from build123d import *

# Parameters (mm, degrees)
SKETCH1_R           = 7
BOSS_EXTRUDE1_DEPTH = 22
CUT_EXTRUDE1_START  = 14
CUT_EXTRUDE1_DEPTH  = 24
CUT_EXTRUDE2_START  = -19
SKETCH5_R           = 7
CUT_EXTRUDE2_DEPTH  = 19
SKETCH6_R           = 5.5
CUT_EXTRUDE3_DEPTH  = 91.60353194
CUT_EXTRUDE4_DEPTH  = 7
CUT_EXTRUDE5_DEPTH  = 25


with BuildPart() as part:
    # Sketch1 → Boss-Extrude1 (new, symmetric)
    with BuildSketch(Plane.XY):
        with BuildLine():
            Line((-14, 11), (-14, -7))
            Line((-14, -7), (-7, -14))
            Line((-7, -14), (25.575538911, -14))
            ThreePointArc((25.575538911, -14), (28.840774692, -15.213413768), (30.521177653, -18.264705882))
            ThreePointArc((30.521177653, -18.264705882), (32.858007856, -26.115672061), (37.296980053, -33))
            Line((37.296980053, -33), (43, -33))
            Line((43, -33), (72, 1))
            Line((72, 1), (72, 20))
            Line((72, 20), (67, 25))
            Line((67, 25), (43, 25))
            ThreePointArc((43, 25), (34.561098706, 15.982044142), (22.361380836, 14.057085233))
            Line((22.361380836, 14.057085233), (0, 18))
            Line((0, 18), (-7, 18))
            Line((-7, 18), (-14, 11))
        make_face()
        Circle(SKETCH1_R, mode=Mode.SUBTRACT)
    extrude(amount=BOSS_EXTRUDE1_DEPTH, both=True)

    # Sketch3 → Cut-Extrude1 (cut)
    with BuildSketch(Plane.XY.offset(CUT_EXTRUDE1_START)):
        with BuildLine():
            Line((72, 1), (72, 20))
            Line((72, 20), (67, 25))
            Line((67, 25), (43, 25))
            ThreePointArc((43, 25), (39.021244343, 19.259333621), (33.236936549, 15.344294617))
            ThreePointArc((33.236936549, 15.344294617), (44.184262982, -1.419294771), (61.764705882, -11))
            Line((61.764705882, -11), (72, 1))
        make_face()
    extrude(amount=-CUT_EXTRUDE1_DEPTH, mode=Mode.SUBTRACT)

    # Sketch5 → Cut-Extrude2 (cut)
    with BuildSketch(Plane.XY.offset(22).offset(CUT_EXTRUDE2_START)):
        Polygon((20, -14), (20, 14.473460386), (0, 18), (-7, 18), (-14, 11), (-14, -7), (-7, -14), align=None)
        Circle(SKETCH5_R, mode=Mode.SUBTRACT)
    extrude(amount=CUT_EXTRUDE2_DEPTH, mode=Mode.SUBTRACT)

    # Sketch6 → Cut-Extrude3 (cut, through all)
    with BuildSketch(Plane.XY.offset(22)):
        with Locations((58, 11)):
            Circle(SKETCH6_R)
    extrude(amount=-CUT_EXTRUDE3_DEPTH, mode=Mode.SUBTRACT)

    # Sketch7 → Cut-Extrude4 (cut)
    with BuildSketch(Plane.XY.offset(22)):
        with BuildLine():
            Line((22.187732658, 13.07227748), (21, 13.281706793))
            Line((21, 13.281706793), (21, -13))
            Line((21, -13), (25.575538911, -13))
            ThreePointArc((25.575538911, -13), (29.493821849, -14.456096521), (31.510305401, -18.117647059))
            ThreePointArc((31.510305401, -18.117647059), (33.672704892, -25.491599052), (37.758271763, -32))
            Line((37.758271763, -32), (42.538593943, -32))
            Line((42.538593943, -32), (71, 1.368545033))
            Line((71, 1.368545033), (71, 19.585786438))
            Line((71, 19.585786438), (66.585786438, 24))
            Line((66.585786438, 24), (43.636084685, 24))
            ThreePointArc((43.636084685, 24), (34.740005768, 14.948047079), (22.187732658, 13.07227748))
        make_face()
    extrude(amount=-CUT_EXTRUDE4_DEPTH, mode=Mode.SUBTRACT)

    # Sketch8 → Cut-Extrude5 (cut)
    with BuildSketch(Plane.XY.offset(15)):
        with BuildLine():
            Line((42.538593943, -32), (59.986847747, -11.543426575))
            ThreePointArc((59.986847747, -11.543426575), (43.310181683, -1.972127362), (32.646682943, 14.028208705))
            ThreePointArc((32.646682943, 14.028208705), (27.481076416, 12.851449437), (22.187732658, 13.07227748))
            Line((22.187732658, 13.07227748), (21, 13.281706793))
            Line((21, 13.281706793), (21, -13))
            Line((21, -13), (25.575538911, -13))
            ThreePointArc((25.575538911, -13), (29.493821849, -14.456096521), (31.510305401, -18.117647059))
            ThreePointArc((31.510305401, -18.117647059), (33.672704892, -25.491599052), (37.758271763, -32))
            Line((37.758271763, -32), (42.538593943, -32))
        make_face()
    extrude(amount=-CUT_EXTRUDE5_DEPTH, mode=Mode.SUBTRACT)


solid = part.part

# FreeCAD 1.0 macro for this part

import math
import FreeCAD as App
import Part
import Sketcher

V = App.Vector
Q = App.Units.Quantity

doc = App.newDocument("Part")
params = doc.addObject("Spreadsheet::Sheet", "Params")
for row, (alias, value) in enumerate([
    ("sketch1_diameter", "14 mm"),
    ("sketch1_radius", "5 mm"),
    ("sketch1_radius2", "29 mm"),
    ("sketch1_radius3", "19 mm"),
    ("sketch1_width", "24 mm"),
    ("pad1_length", "44 mm"),
    ("sketch2_radius", "19 mm"),
    ("sketch2_radius2", "41 mm"),
    ("sketch2_width", "24 mm"),
    ("sketch2_height", "19 mm"),
    ("pocket1_length", "24 mm"),
    ("sketch3_diameter", "14 mm"),
    ("sketch3_width", "7 mm"),
    ("sketch3_width2", "27 mm"),
    ("sketch3_height", "18 mm"),
    ("pocket2_length", "19 mm"),
    ("sketch4_diameter", "11 mm"),
    ("sketch5_radius", "6 mm"),
    ("sketch5_radius2", "28 mm"),
    ("sketch5_radius3", "20 mm"),
    ("pocket4_length", "7 mm"),
    ("sketch6_radius", "42 mm"),
    ("sketch6_radius2", "20 mm"),
    ("sketch6_radius3", "6 mm"),
    ("sketch6_radius4", "28 mm"),
    ("pocket5_length", "25 mm"),
], start=1):
    params.set(f"A{row}", alias)
    params.set(f"B{row}", "=" + value)
    params.setAlias(f"B{row}", alias)

body = doc.addObject("PartDesign::Body", "Body")

sketch1 = body.newObject("Sketcher::SketchObject", "Sketch")
sketch1.AttachmentSupport = (doc.getObject("XY_Plane"), [""])
sketch1.MapMode = "FlatFace"
sketch1.addGeometry([
    Part.LineSegment(V(-14, 11, 0), V(-14, -7, 0)),
    Part.LineSegment(V(-14, -7, 0), V(-7, -14, 0)),
    Part.LineSegment(V(-7, -14, 0), V(26, -14, 0)),
    Part.ArcOfCircle(Part.Circle(V(26, -19, 0), V(0, 0, 1), 5), math.radians(8), math.radians(90)),
    Part.ArcOfCircle(Part.Circle(V(59, -14, 0), V(0, 0, 1), 29), math.radians(-172), math.radians(-139)),
    Part.LineSegment(V(37, -33, 0), V(43, -33, 0)),
    Part.LineSegment(V(43, -33, 0), V(72, 1, 0)),
    Part.LineSegment(V(72, 1, 0), V(72, 20, 0)),
    Part.LineSegment(V(72, 20, 0), V(67, 25, 0)),
    Part.LineSegment(V(67, 25, 0), V(43, 25, 0)),
    Part.ArcOfCircle(Part.Circle(V(26, 33, 0), V(0, 0, 1), 19), math.radians(-100), math.radians(-24)),
    Part.LineSegment(V(22, 14, 0), V(0, 18, 0)),
    Part.LineSegment(V(0, 18, 0), V(-7, 18, 0)),
    Part.LineSegment(V(-7, 18, 0), V(-14, 11, 0)),
    Part.Circle(V(0, 0, 0), V(0, 0, 1), 7),
], False)
sketch1.addConstraint([
    Sketcher.Constraint("Coincident", 0, 2, 1, 1),
    Sketcher.Constraint("Coincident", 1, 2, 2, 1),
    Sketcher.Constraint("Tangent", 2, 2, 3, 2),
    Sketcher.Constraint("Tangent", 3, 1, 4, 1),
    Sketcher.Constraint("Coincident", 4, 2, 5, 1),
    Sketcher.Constraint("Coincident", 5, 2, 6, 1),
    Sketcher.Constraint("Coincident", 6, 2, 7, 1),
    Sketcher.Constraint("Coincident", 7, 2, 8, 1),
    Sketcher.Constraint("Coincident", 8, 2, 9, 1),
    Sketcher.Constraint("Coincident", 9, 2, 10, 2),
    Sketcher.Constraint("Tangent", 10, 1, 11, 1),
    Sketcher.Constraint("Coincident", 11, 2, 12, 1),
    Sketcher.Constraint("Coincident", 12, 2, 13, 1),
    Sketcher.Constraint("Coincident", 13, 2, 0, 1),
    Sketcher.Constraint("Vertical", 0),
    Sketcher.Constraint("Horizontal", 2),
    Sketcher.Constraint("Horizontal", 5),
    Sketcher.Constraint("Vertical", 7),
    Sketcher.Constraint("Horizontal", 9),
    Sketcher.Constraint("Horizontal", 12),
    Sketcher.Constraint("Coincident", 14, 3, -1, 1),
    Sketcher.Constraint("PointOnObject", 11, 2, -2),
    Sketcher.Constraint("Parallel", 1, 8),
    Sketcher.Constraint("Perpendicular", 8, 13),
    Sketcher.Constraint("Horizontal", 4, 3, 1, 2),
    Sketcher.Constraint("Vertical", 5, 2, 9, 2),
    Sketcher.Constraint("Vertical", 1, 2, 12, 2),
    Sketcher.Constraint("Equal", 1, 13),
    Sketcher.Constraint("Diameter", 14, Q("14 mm")),
    Sketcher.Constraint("Radius", 3, Q("5 mm")),
    Sketcher.Constraint("Radius", 4, Q("29 mm")),
    Sketcher.Constraint("Radius", 10, Q("19 mm")),
    Sketcher.Constraint("DistanceX", 9, 2, 9, 1, Q("24 mm")),
    Sketcher.Constraint("DistanceX", 12, 2, 12, 1, Q("7 mm")),
    Sketcher.Constraint("DistanceY", 0, 2, 0, 1, Q("18 mm")),
    Sketcher.Constraint("DistanceY", 7, 1, 7, 2, Q("19 mm")),
    Sketcher.Constraint("Angle", 11, Q("170 deg")),
    Sketcher.Constraint("DistanceY", 3, 3, -1, 1, Q("19 mm")),
    Sketcher.Constraint("DistanceX", 0, 2, -1, 1, Q("14 mm")),
    Sketcher.Constraint("DistanceY", 4, 2, -1, 1, Q("33 mm")),
    Sketcher.Constraint("DistanceX", -1, 1, 5, 2, Q("43 mm")),
    Sketcher.Constraint("DistanceX", -1, 1, 6, 2, Q("72 mm")),
    Sketcher.Constraint("DistanceY", -1, 1, 6, 2, Q("1 mm")),
    Sketcher.Constraint("DistanceX", 2, 1, 2, 2, Q("32.575539 mm")),
])
sketch1.setExpression("Constraints[28]", "Params.sketch1_diameter")
sketch1.setExpression("Constraints[29]", "Params.sketch1_radius")
sketch1.setExpression("Constraints[30]", "Params.sketch1_radius2")
sketch1.setExpression("Constraints[31]", "Params.sketch1_radius3")
sketch1.setExpression("Constraints[32]", "Params.sketch1_width")
pad1 = body.newObject("PartDesign::Pad", "Pad")
pad1.Profile = sketch1
pad1.setExpression("Length", "Params.pad1_length")
pad1.Midplane = True

sketch2 = body.newObject("Sketcher::SketchObject", "Sketch001")
sketch2.AttachmentSupport = (doc.getObject("XY_Plane"), [""])
sketch2.MapMode = "FlatFace"
sketch2.AttachmentOffset = App.Placement(V(0, 0, 14), App.Rotation())
sketch2.addGeometry([
    Part.LineSegment(V(72, 1, 0), V(72, 20, 0)),
    Part.LineSegment(V(72, 20, 0), V(67, 25, 0)),
    Part.LineSegment(V(67, 25, 0), V(43, 25, 0)),
    Part.ArcOfCircle(Part.Circle(V(26, 33, 0), V(0, 0, 1), 19), math.radians(-66), math.radians(-24)),
    Part.ArcOfCircle(Part.Circle(V(72, 29, 0), V(0, 0, 1), 41), math.radians(-161), math.radians(-104)),
    Part.LineSegment(V(62, -11, 0), V(72, 1, 0)),
], False)
sketch2.addConstraint([
    Sketcher.Constraint("Coincident", 0, 2, 1, 1),
    Sketcher.Constraint("Coincident", 1, 2, 2, 1),
    Sketcher.Constraint("Coincident", 2, 2, 3, 2),
    Sketcher.Constraint("Coincident", 3, 1, 4, 1),
    Sketcher.Constraint("Coincident", 4, 2, 5, 1),
    Sketcher.Constraint("Coincident", 5, 2, 0, 1),
    Sketcher.Constraint("Vertical", 0),
    Sketcher.Constraint("Horizontal", 2),
    Sketcher.Constraint("Vertical", 4, 3, 0, 2),
    Sketcher.Constraint("Radius", 3, Q("19 mm")),
    Sketcher.Constraint("Radius", 4, Q("41 mm")),
    Sketcher.Constraint("DistanceX", 2, 2, 2, 1, Q("24 mm")),
    Sketcher.Constraint("DistanceY", 0, 1, 0, 2, Q("19 mm")),
    Sketcher.Constraint("Angle", 1, Q("135 deg")),
    Sketcher.Constraint("DistanceX", -1, 1, 4, 3, Q("72 mm")),
    Sketcher.Constraint("DistanceY", -1, 1, 0, 2, Q("20 mm")),
    Sketcher.Constraint("DistanceX", -1, 1, 1, 2, Q("67 mm")),
    Sketcher.Constraint("DistanceY", 4, 2, -1, 1, Q("11 mm")),
    Sketcher.Constraint("DistanceY", 4, 3, 3, 3, Q("4.066559 mm")),
    Sketcher.Constraint("DistanceX", 3, 3, 3, 1, Q("7.57624 mm")),
])
sketch2.setExpression("Constraints[9]", "Params.sketch2_radius")
sketch2.setExpression("Constraints[10]", "Params.sketch2_radius2")
sketch2.setExpression("Constraints[11]", "Params.sketch2_width")
sketch2.setExpression("Constraints[12]", "Params.sketch2_height")
pocket1 = body.newObject("PartDesign::Pocket", "Pocket")
pocket1.Profile = sketch2
pocket1.setExpression("Length", "Params.pocket1_length")

sketch3 = body.newObject("Sketcher::SketchObject", "Sketch002")
sketch3.AttachmentSupport = (doc.getObject("XY_Plane"), [""])
sketch3.MapMode = "FlatFace"
sketch3.AttachmentOffset = App.Placement(V(0, 0, 3), App.Rotation())
sketch3.addGeometry([
    Part.LineSegment(V(20, -14, 0), V(20, 14, 0)),
    Part.LineSegment(V(20, 14, 0), V(0, 18, 0)),
    Part.LineSegment(V(0, 18, 0), V(-7, 18, 0)),
    Part.LineSegment(V(-7, 18, 0), V(-14, 11, 0)),
    Part.LineSegment(V(-14, 11, 0), V(-14, -7, 0)),
    Part.LineSegment(V(-14, -7, 0), V(-7, -14, 0)),
    Part.LineSegment(V(-7, -14, 0), V(20, -14, 0)),
    Part.Circle(V(0, 0, 0), V(0, 0, 1), 7),
], False)
sketch3.addConstraint([
    Sketcher.Constraint("Coincident", 0, 2, 1, 1),
    Sketcher.Constraint("Coincident", 1, 2, 2, 1),
    Sketcher.Constraint("Coincident", 2, 2, 3, 1),
    Sketcher.Constraint("Coincident", 3, 2, 4, 1),
    Sketcher.Constraint("Coincident", 4, 2, 5, 1),
    Sketcher.Constraint("Coincident", 5, 2, 6, 1),
    Sketcher.Constraint("Coincident", 6, 2, 0, 1),
    Sketcher.Constraint("Vertical", 0),
    Sketcher.Constraint("Horizontal", 2),
    Sketcher.Constraint("Vertical", 4),
    Sketcher.Constraint("Horizontal", 6),
    Sketcher.Constraint("Coincident", 7, 3, -1, 1),
    Sketcher.Constraint("PointOnObject", 1, 2, -2),
    Sketcher.Constraint("Perpendicular", 3, 5),
    Sketcher.Constraint("Vertical", 2, 2, 5, 2),
    Sketcher.Constraint("Equal", 3, 5),
    Sketcher.Constraint("Diameter", 7, Q("14 mm")),
    Sketcher.Constraint("DistanceX", 2, 2, 2, 1, Q("7 mm")),
    Sketcher.Constraint("DistanceX", 6, 1, 6, 2, Q("27 mm")),
    Sketcher.Constraint("DistanceY", 4, 2, 4, 1, Q("18 mm")),
    Sketcher.Constraint("Angle", 1, Q("170 deg")),
    Sketcher.Constraint("DistanceY", -1, 1, 1, 2, Q("18 mm")),
    Sketcher.Constraint("DistanceX", 3, 2, -1, 1, Q("14 mm")),
])
sketch3.setExpression("Constraints[16]", "Params.sketch3_diameter")
sketch3.setExpression("Constraints[17]", "Params.sketch3_width")
sketch3.setExpression("Constraints[18]", "Params.sketch3_width2")
sketch3.setExpression("Constraints[19]", "Params.sketch3_height")
pocket2 = body.newObject("PartDesign::Pocket", "Pocket001")
pocket2.Profile = sketch3
pocket2.setExpression("Length", "Params.pocket2_length")
pocket2.Reversed = True

sketch4 = body.newObject("Sketcher::SketchObject", "Sketch003")
sketch4.AttachmentSupport = (doc.getObject("XY_Plane"), [""])
sketch4.MapMode = "FlatFace"
sketch4.AttachmentOffset = App.Placement(V(0, 0, 22), App.Rotation())
sketch4.addGeometry(Part.Circle(V(58, 11, 0), V(0, 0, 1), 6), False)
sketch4.addConstraint([
    Sketcher.Constraint("Diameter", 0, Q("11 mm")),
    Sketcher.Constraint("DistanceX", -1, 1, 0, 3, Q("58 mm")),
    Sketcher.Constraint("DistanceY", -1, 1, 0, 3, Q("11 mm")),
])
sketch4.setExpression("Constraints[0]", "Params.sketch4_diameter")
pocket3 = body.newObject("PartDesign::Pocket", "Pocket002")
pocket3.Profile = sketch4
pocket3.Type = "ThroughAll"

sketch5 = body.newObject("Sketcher::SketchObject", "Sketch004")
sketch5.AttachmentSupport = (doc.getObject("XY_Plane"), [""])
sketch5.MapMode = "FlatFace"
sketch5.AttachmentOffset = App.Placement(V(0, 0, 22), App.Rotation())
sketch5.addGeometry([
    Part.LineSegment(V(22.2, 13.1, 0), V(21, 13.3, 0)),
    Part.LineSegment(V(21, 13.3, 0), V(21, -13, 0)),
    Part.LineSegment(V(21, -13, 0), V(25.6, -13, 0)),
    Part.ArcOfCircle(Part.Circle(V(25.6, -19, 0), V(0, 0, 1), 6), math.radians(8), math.radians(90)),
    Part.ArcOfCircle(Part.Circle(V(59.2, -14, 0), V(0, 0, 1), 28), math.radians(-172), math.radians(-140)),
    Part.LineSegment(V(37.8, -32, 0), V(42.5, -32, 0)),
    Part.LineSegment(V(42.5, -32, 0), V(71, 1.4, 0)),
    Part.LineSegment(V(71, 1.4, 0), V(71, 19.6, 0)),
    Part.LineSegment(V(71, 19.6, 0), V(66.6, 24, 0)),
    Part.LineSegment(V(66.6, 24, 0), V(43.6, 24, 0)),
    Part.ArcOfCircle(Part.Circle(V(25.7, 32.8, 0), V(0, 0, 1), 20), math.radians(-100), math.radians(-26)),
], False)
sketch5.addConstraint([
    Sketcher.Constraint("Coincident", 0, 2, 1, 1),
    Sketcher.Constraint("Coincident", 1, 2, 2, 1),
    Sketcher.Constraint("Tangent", 2, 2, 3, 2),
    Sketcher.Constraint("Tangent", 3, 1, 4, 1),
    Sketcher.Constraint("Coincident", 4, 2, 5, 1),
    Sketcher.Constraint("Coincident", 5, 2, 6, 1),
    Sketcher.Constraint("Coincident", 6, 2, 7, 1),
    Sketcher.Constraint("Coincident", 7, 2, 8, 1),
    Sketcher.Constraint("Coincident", 8, 2, 9, 1),
    Sketcher.Constraint("Coincident", 9, 2, 10, 2),
    Sketcher.Constraint("Tangent", 10, 1, 0, 1),
    Sketcher.Constraint("Vertical", 1),
    Sketcher.Constraint("Horizontal", 2),
    Sketcher.Constraint("Horizontal", 5),
    Sketcher.Constraint("Vertical", 7),
    Sketcher.Constraint("Horizontal", 9),
    Sketcher.Constraint("Radius", 3, Q("6 mm")),
    Sketcher.Constraint("Radius", 4, Q("28 mm")),
    Sketcher.Constraint("Radius", 10, Q("20 mm")),
    Sketcher.Constraint("Angle", 0, Q("170 deg")),
    Sketcher.Constraint("Angle", 8, Q("135 deg")),
    Sketcher.Constraint("DistanceY", 3, 3, -1, 1, Q("19 mm")),
    Sketcher.Constraint("DistanceY", 4, 3, -1, 1, Q("14 mm")),
    Sketcher.Constraint("DistanceX", -1, 1, 0, 2, Q("21 mm")),
    Sketcher.Constraint("DistanceY", 4, 2, -1, 1, Q("32 mm")),
    Sketcher.Constraint("DistanceX", -1, 1, 6, 2, Q("71 mm")),
    Sketcher.Constraint("DistanceY", -1, 1, 8, 2, Q("24 mm")),
    Sketcher.Constraint("DistanceX", 9, 2, 9, 1, Q("22.949702 mm")),
    Sketcher.Constraint("DistanceX", 2, 1, 2, 2, Q("4.575539 mm")),
    Sketcher.Constraint("DistanceY", 7, 1, 7, 2, Q("18.217241 mm")),
    Sketcher.Constraint("Distance", 8, Q("6.242641 mm")),
    Sketcher.Constraint("DistanceX", 5, 1, 5, 2, Q("4.780322 mm")),
    Sketcher.Constraint("DistanceY", 1, 2, 1, 1, Q("26.281707 mm")),
])
sketch5.setExpression("Constraints[16]", "Params.sketch5_radius")
sketch5.setExpression("Constraints[17]", "Params.sketch5_radius2")
sketch5.setExpression("Constraints[18]", "Params.sketch5_radius3")
pocket4 = body.newObject("PartDesign::Pocket", "Pocket003")
pocket4.Profile = sketch5
pocket4.setExpression("Length", "Params.pocket4_length")

sketch6 = body.newObject("Sketcher::SketchObject", "Sketch005")
sketch6.AttachmentSupport = (doc.getObject("XY_Plane"), [""])
sketch6.MapMode = "FlatFace"
sketch6.AttachmentOffset = App.Placement(V(0, 0, 15), App.Rotation())
sketch6.addGeometry([
    Part.LineSegment(V(42.5, -32, 0), V(60, -11.5, 0)),
    Part.ArcOfCircle(Part.Circle(V(72, 28.7, 0), V(0, 0, 1), 42), math.radians(-160), math.radians(-107)),
    Part.ArcOfCircle(Part.Circle(V(25.7, 32.8, 0), V(0, 0, 1), 20), math.radians(-100), math.radians(-70)),
    Part.LineSegment(V(22.2, 13.1, 0), V(21, 13.3, 0)),
    Part.LineSegment(V(21, 13.3, 0), V(21, -13, 0)),
    Part.LineSegment(V(21, -13, 0), V(25.6, -13, 0)),
    Part.ArcOfCircle(Part.Circle(V(25.6, -19, 0), V(0, 0, 1), 6), math.radians(8), math.radians(90)),
    Part.ArcOfCircle(Part.Circle(V(59.2, -14, 0), V(0, 0, 1), 28), math.radians(-172), math.radians(-140)),
    Part.LineSegment(V(37.8, -32, 0), V(42.5, -32, 0)),
], False)
sketch6.addConstraint([
    Sketcher.Constraint("Coincident", 0, 2, 1, 2),
    Sketcher.Constraint("Coincident", 1, 1, 2, 2),
    Sketcher.Constraint("Tangent", 2, 1, 3, 1),
    Sketcher.Constraint("Coincident", 3, 2, 4, 1),
    Sketcher.Constraint("Coincident", 4, 2, 5, 1),
    Sketcher.Constraint("Tangent", 5, 2, 6, 2),
    Sketcher.Constraint("Tangent", 6, 1, 7, 1),
    Sketcher.Constraint("Coincident", 7, 2, 8, 1),
    Sketcher.Constraint("Coincident", 8, 2, 0, 1),
    Sketcher.Constraint("Vertical", 4),
    Sketcher.Constraint("Horizontal", 5),
    Sketcher.Constraint("Horizontal", 8),
    Sketcher.Constraint("Radius", 1, Q("42 mm")),
    Sketcher.Constraint("Radius", 2, Q("20 mm")),
    Sketcher.Constraint("Radius", 6, Q("6 mm")),
    Sketcher.Constraint("Radius", 7, Q("28 mm")),
    Sketcher.Constraint("Angle", 3, Q("170 deg")),
    Sketcher.Constraint("DistanceX", -1, 1, 1, 3, Q("72 mm")),
    Sketcher.Constraint("DistanceY", 6, 3, -1, 1, Q("19 mm")),
    Sketcher.Constraint("DistanceY", 7, 3, -1, 1, Q("14 mm")),
    Sketcher.Constraint("DistanceX", -1, 1, 3, 2, Q("21 mm")),
    Sketcher.Constraint("DistanceY", 7, 2, -1, 1, Q("32 mm")),
    Sketcher.Constraint("DistanceX", 5, 1, 5, 2, Q("4.575539 mm")),
    Sketcher.Constraint("DistanceY", 0, 2, 1, 3, Q("40.2453 mm")),
    Sketcher.Constraint("DistanceX", 1, 1, 7, 3, Q("26.559199 mm")),
    Sketcher.Constraint("DistanceY", 3, 2, 1, 1, Q("0.746502 mm")),
    Sketcher.Constraint("Distance", 0, Q("26.887041 mm")),
    Sketcher.Constraint("DistanceX", 8, 1, 8, 2, Q("4.780322 mm")),
])
sketch6.setExpression("Constraints[12]", "Params.sketch6_radius")
sketch6.setExpression("Constraints[13]", "Params.sketch6_radius2")
sketch6.setExpression("Constraints[14]", "Params.sketch6_radius3")
sketch6.setExpression("Constraints[15]", "Params.sketch6_radius4")
pocket5 = body.newObject("PartDesign::Pocket", "Pocket004")
pocket5.Profile = sketch6
pocket5.setExpression("Length", "Params.pocket5_length")

doc.recompute()
